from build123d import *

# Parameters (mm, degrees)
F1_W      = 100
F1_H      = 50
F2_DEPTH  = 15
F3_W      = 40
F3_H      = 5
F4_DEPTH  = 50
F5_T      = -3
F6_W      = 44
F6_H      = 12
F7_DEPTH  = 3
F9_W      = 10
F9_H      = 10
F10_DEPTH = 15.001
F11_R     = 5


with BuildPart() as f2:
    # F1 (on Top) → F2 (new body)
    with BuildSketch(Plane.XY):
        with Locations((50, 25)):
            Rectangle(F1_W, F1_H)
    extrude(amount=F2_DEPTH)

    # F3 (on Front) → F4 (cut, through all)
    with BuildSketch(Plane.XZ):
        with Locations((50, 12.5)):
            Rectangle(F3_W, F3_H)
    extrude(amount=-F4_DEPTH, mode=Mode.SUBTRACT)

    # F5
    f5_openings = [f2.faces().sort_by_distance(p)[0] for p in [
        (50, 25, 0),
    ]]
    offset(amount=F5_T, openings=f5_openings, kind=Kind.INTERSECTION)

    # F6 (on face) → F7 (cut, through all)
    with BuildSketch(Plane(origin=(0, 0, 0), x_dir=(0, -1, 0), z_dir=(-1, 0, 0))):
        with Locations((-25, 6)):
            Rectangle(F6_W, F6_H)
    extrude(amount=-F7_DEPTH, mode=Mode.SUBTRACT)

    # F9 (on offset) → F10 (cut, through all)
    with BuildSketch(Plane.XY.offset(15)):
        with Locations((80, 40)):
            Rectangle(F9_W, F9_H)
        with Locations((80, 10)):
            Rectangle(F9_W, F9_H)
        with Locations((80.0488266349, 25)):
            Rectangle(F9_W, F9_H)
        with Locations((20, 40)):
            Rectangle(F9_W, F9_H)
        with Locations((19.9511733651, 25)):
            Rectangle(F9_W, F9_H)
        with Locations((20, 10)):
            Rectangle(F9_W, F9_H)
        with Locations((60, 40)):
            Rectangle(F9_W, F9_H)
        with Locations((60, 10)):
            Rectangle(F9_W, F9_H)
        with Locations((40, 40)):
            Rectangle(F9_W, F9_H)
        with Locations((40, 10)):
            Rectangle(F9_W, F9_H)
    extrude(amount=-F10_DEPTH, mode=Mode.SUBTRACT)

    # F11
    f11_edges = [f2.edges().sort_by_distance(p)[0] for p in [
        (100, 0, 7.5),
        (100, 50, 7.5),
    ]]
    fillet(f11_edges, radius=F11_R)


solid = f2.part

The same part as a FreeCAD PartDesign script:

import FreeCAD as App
import Part
import Sketcher
Q = App.Units.Quantity


def edges_at(feature, points):
    """Names of the edges that pass closest to the given points."""
    edges = feature.Shape.Edges
    near = lambda p: min(range(len(edges)), key=lambda i: edges[i].distToShape(Part.Vertex(*p))[0])
    return sorted({f"Edge{near(p) + 1}" for p in points})


def faces_at(feature, points):
    """Names of the faces that lie closest to the given points."""
    faces = feature.Shape.Faces
    near = lambda p: min(range(len(faces)), key=lambda i: faces[i].distToShape(Part.Vertex(*p))[0])
    return sorted({f"Face{near(p) + 1}" for p in points})

doc = App.newDocument("Part")
body = doc.addObject("PartDesign::Body", "Body")

# Sketch on XY plane
sketch1 = body.newObject("Sketcher::SketchObject", "Sketch")
sketch1.AttachmentSupport = (doc.getObject("XY_Plane"), [""])
sketch1.MapMode = "FlatFace"
sketch1.addGeometry(Part.LineSegment(App.Vector(0, 50, 0), App.Vector(0, 0, 0)), False)
sketch1.addGeometry(Part.LineSegment(App.Vector(0, 0, 0), App.Vector(100, 0, 0)), False)
sketch1.addGeometry(Part.LineSegment(App.Vector(100, 0, 0), App.Vector(100, 50, 0)), False)
sketch1.addGeometry(Part.LineSegment(App.Vector(100, 50, 0), App.Vector(0, 50, 0)), False)
sketch1.addConstraint(Sketcher.Constraint("Coincident", 0, 2, 1, 1))
sketch1.addConstraint(Sketcher.Constraint("Coincident", 1, 2, 2, 1))
sketch1.addConstraint(Sketcher.Constraint("Coincident", 2, 2, 3, 1))
sketch1.addConstraint(Sketcher.Constraint("Coincident", 3, 2, 0, 1))
sketch1.addConstraint(Sketcher.Constraint("Vertical", 0))
sketch1.addConstraint(Sketcher.Constraint("Horizontal", 1))
sketch1.addConstraint(Sketcher.Constraint("Vertical", 2))
sketch1.addConstraint(Sketcher.Constraint("Horizontal", 3))
sketch1.addConstraint(Sketcher.Constraint("Coincident", 0, 2, -1, 1))
sketch1.addConstraint(Sketcher.Constraint("DistanceX", 1, 1, 1, 2, Q("100 mm")))
sketch1.addConstraint(Sketcher.Constraint("DistanceY", 0, 2, 0, 1, Q("50 mm")))
pad1 = body.newObject("PartDesign::Pad", "Pad")
pad1.Profile = sketch1
pad1.Length = 15

# Sketch on XZ plane
sketch2 = body.newObject("Sketcher::SketchObject", "Sketch001")
sketch2.AttachmentSupport = (doc.getObject("XZ_Plane"), [""])
sketch2.MapMode = "FlatFace"
sketch2.addGeometry(Part.LineSegment(App.Vector(30, 15, 0), App.Vector(30, 10, 0)), False)
sketch2.addGeometry(Part.LineSegment(App.Vector(30, 10, 0), App.Vector(70, 10, 0)), False)
sketch2.addGeometry(Part.LineSegment(App.Vector(70, 10, 0), App.Vector(70, 15, 0)), False)
sketch2.addGeometry(Part.LineSegment(App.Vector(70, 15, 0), App.Vector(30, 15, 0)), False)
sketch2.addConstraint(Sketcher.Constraint("Coincident", 0, 2, 1, 1))
sketch2.addConstraint(Sketcher.Constraint("Coincident", 1, 2, 2, 1))
sketch2.addConstraint(Sketcher.Constraint("Coincident", 2, 2, 3, 1))
sketch2.addConstraint(Sketcher.Constraint("Coincident", 3, 2, 0, 1))
sketch2.addConstraint(Sketcher.Constraint("Vertical", 0))
sketch2.addConstraint(Sketcher.Constraint("Horizontal", 1))
sketch2.addConstraint(Sketcher.Constraint("Vertical", 2))
sketch2.addConstraint(Sketcher.Constraint("Horizontal", 3))
sketch2.addConstraint(Sketcher.Constraint("DistanceX", 1, 1, 1, 2, Q("40 mm")))
sketch2.addConstraint(Sketcher.Constraint("DistanceY", 0, 2, 0, 1, Q("5 mm")))
sketch2.addConstraint(Sketcher.Constraint("DistanceX", -1, 1, 0, 2, Q("30 mm")))
sketch2.addConstraint(Sketcher.Constraint("DistanceY", -1, 1, 0, 2, Q("10 mm")))
pocket1 = body.newObject("PartDesign::Pocket", "Pocket")
pocket1.Profile = sketch2
pocket1.Type = "ThroughAll"
doc.recompute()

thickness = body.newObject("PartDesign::Thickness", "Thickness")
thickness.Base = (pocket1, faces_at(pocket1, [(50, 25, 0)]))
thickness.Value = 3
thickness.Reversed = True
thickness.Join = "Intersection"

# Sketch on YZ plane
sketch3 = body.newObject("Sketcher::SketchObject", "Sketch002")
sketch3.AttachmentSupport = (doc.getObject("YZ_Plane"), [""])
sketch3.MapMode = "FlatFace"
sketch3.addGeometry(Part.LineSegment(App.Vector(47, 12, 0), App.Vector(47, 0, 0)), False)
sketch3.addGeometry(Part.LineSegment(App.Vector(47, 0, 0), App.Vector(3, 0, 0)), False)
sketch3.addGeometry(Part.LineSegment(App.Vector(3, 0, 0), App.Vector(3, 12, 0)), False)
sketch3.addGeometry(Part.LineSegment(App.Vector(3, 12, 0), App.Vector(47, 12, 0)), False)
sketch3.addConstraint(Sketcher.Constraint("Coincident", 0, 2, 1, 1))
sketch3.addConstraint(Sketcher.Constraint("Coincident", 1, 2, 2, 1))
sketch3.addConstraint(Sketcher.Constraint("Coincident", 2, 2, 3, 1))
sketch3.addConstraint(Sketcher.Constraint("Coincident", 3, 2, 0, 1))
sketch3.addConstraint(Sketcher.Constraint("Vertical", 0))
sketch3.addConstraint(Sketcher.Constraint("Horizontal", 1))
sketch3.addConstraint(Sketcher.Constraint("Vertical", 2))
sketch3.addConstraint(Sketcher.Constraint("Horizontal", 3))
sketch3.addConstraint(Sketcher.Constraint("PointOnObject", 0, 2, -1))
sketch3.addConstraint(Sketcher.Constraint("DistanceX", 1, 2, 1, 1, Q("44 mm")))
sketch3.addConstraint(Sketcher.Constraint("DistanceY", 0, 2, 0, 1, Q("12 mm")))
sketch3.addConstraint(Sketcher.Constraint("DistanceX", -1, 1, 0, 2, Q("47 mm")))
pocket2 = body.newObject("PartDesign::Pocket", "Pocket001")
pocket2.Profile = sketch3
pocket2.Length = 3
pocket2.Reversed = True

# Sketch on XY plane
sketch4 = body.newObject("Sketcher::SketchObject", "Sketch003")
sketch4.AttachmentSupport = (doc.getObject("XY_Plane"), [""])
sketch4.MapMode = "FlatFace"
sketch4.AttachmentOffset = App.Placement(App.Vector(0, 0, 15), App.Rotation())
sketch4.addGeometry(Part.LineSegment(App.Vector(75, 45, 0), App.Vector(75, 35, 0)), False)
sketch4.addGeometry(Part.LineSegment(App.Vector(75, 35, 0), App.Vector(85, 35, 0)), False)
sketch4.addGeometry(Part.LineSegment(App.Vector(85, 35, 0), App.Vector(85, 45, 0)), False)
sketch4.addGeometry(Part.LineSegment(App.Vector(85, 45, 0), App.Vector(75, 45, 0)), False)
sketch4.addGeometry(Part.LineSegment(App.Vector(75, 15, 0), App.Vector(75, 5, 0)), False)
sketch4.addGeometry(Part.LineSegment(App.Vector(75, 5, 0), App.Vector(85, 5, 0)), False)
sketch4.addGeometry(Part.LineSegment(App.Vector(85, 5, 0), App.Vector(85, 15, 0)), False)
sketch4.addGeometry(Part.LineSegment(App.Vector(85, 15, 0), App.Vector(75, 15, 0)), False)
sketch4.addGeometry(Part.LineSegment(App.Vector(75, 30, 0), App.Vector(75, 20, 0)), False)
sketch4.addGeometry(Part.LineSegment(App.Vector(75, 20, 0), App.Vector(85, 20, 0)), False)
sketch4.addGeometry(Part.LineSegment(App.Vector(85, 20, 0), App.Vector(85, 30, 0)), False)
sketch4.addGeometry(Part.LineSegment(App.Vector(85, 30, 0), App.Vector(75, 30, 0)), False)
sketch4.addGeometry(Part.LineSegment(App.Vector(15, 45, 0), App.Vector(15, 35, 0)), False)
sketch4.addGeometry(Part.LineSegment(App.Vector(15, 35, 0), App.Vector(25, 35, 0)), False)
sketch4.addGeometry(Part.LineSegment(App.Vector(25, 35, 0), App.Vector(25, 45, 0)), False)
sketch4.addGeometry(Part.LineSegment(App.Vector(25, 45, 0), App.Vector(15, 45, 0)), False)
sketch4.addGeometry(Part.LineSegment(App.Vector(15, 30, 0), App.Vector(15, 20, 0)), False)
sketch4.addGeometry(Part.LineSegment(App.Vector(15, 20, 0), App.Vector(25, 20, 0)), False)
sketch4.addGeometry(Part.LineSegment(App.Vector(25, 20, 0), App.Vector(25, 30, 0)), False)
sketch4.addGeometry(Part.LineSegment(App.Vector(25, 30, 0), App.Vector(15, 30, 0)), False)
sketch4.addGeometry(Part.LineSegment(App.Vector(15, 15, 0), App.Vector(15, 5, 0)), False)
sketch4.addGeometry(Part.LineSegment(App.Vector(15, 5, 0), App.Vector(25, 5, 0)), False)
sketch4.addGeometry(Part.LineSegment(App.Vector(25, 5, 0), App.Vector(25, 15, 0)), False)
sketch4.addGeometry(Part.LineSegment(App.Vector(25, 15, 0), App.Vector(15, 15, 0)), False)
sketch4.addGeometry(Part.LineSegment(App.Vector(55, 45, 0), App.Vector(55, 35, 0)), False)
sketch4.addGeometry(Part.LineSegment(App.Vector(55, 35, 0), App.Vector(65, 35, 0)), False)
sketch4.addGeometry(Part.LineSegment(App.Vector(65, 35, 0), App.Vector(65, 45, 0)), False)
sketch4.addGeometry(Part.LineSegment(App.Vector(65, 45, 0), App.Vector(55, 45, 0)), False)
sketch4.addGeometry(Part.LineSegment(App.Vector(55, 15, 0), App.Vector(55, 5, 0)), False)
sketch4.addGeometry(Part.LineSegment(App.Vector(55, 5, 0), App.Vector(65, 5, 0)), False)
sketch4.addGeometry(Part.LineSegment(App.Vector(65, 5, 0), App.Vector(65, 15, 0)), False)
sketch4.addGeometry(Part.LineSegment(App.Vector(65, 15, 0), App.Vector(55, 15, 0)), False)
sketch4.addGeometry(Part.LineSegment(App.Vector(35, 45, 0), App.Vector(35, 35, 0)), False)
sketch4.addGeometry(Part.LineSegment(App.Vector(35, 35, 0), App.Vector(45, 35, 0)), False)
sketch4.addGeometry(Part.LineSegment(App.Vector(45, 35, 0), App.Vector(45, 45, 0)), False)
sketch4.addGeometry(Part.LineSegment(App.Vector(45, 45, 0), App.Vector(35, 45, 0)), False)
sketch4.addGeometry(Part.LineSegment(App.Vector(35, 15, 0), App.Vector(35, 5, 0)), False)
sketch4.addGeometry(Part.LineSegment(App.Vector(35, 5, 0), App.Vector(45, 5, 0)), False)
sketch4.addGeometry(Part.LineSegment(App.Vector(45, 5, 0), App.Vector(45, 15, 0)), False)
sketch4.addGeometry(Part.LineSegment(App.Vector(45, 15, 0), App.Vector(35, 15, 0)), False)
sketch4.addConstraint(Sketcher.Constraint("Coincident", 0, 2, 1, 1))
sketch4.addConstraint(Sketcher.Constraint("Coincident", 1, 2, 2, 1))
sketch4.addConstraint(Sketcher.Constraint("Coincident", 2, 2, 3, 1))
sketch4.addConstraint(Sketcher.Constraint("Coincident", 3, 2, 0, 1))
sketch4.addConstraint(Sketcher.Constraint("Coincident", 4, 2, 5, 1))
sketch4.addConstraint(Sketcher.Constraint("Coincident", 5, 2, 6, 1))
sketch4.addConstraint(Sketcher.Constraint("Coincident", 6, 2, 7, 1))
sketch4.addConstraint(Sketcher.Constraint("Coincident", 7, 2, 4, 1))
sketch4.addConstraint(Sketcher.Constraint("Coincident", 8, 2, 9, 1))
sketch4.addConstraint(Sketcher.Constraint("Coincident", 9, 2, 10, 1))
sketch4.addConstraint(Sketcher.Constraint("Coincident", 10, 2, 11, 1))
sketch4.addConstraint(Sketcher.Constraint("Coincident", 11, 2, 8, 1))
sketch4.addConstraint(Sketcher.Constraint("Coincident", 12, 2, 13, 1))
sketch4.addConstraint(Sketcher.Constraint("Coincident", 13, 2, 14, 1))
sketch4.addConstraint(Sketcher.Constraint("Coincident", 14, 2, 15, 1))
sketch4.addConstraint(Sketcher.Constraint("Coincident", 15, 2, 12, 1))
sketch4.addConstraint(Sketcher.Constraint("Coincident", 16, 2, 17, 1))
sketch4.addConstraint(Sketcher.Constraint("Coincident", 17, 2, 18, 1))
sketch4.addConstraint(Sketcher.Constraint("Coincident", 18, 2, 19, 1))
sketch4.addConstraint(Sketcher.Constraint("Coincident", 19, 2, 16, 1))
sketch4.addConstraint(Sketcher.Constraint("Coincident", 20, 2, 21, 1))
sketch4.addConstraint(Sketcher.Constraint("Coincident", 21, 2, 22, 1))
sketch4.addConstraint(Sketcher.Constraint("Coincident", 22, 2, 23, 1))
sketch4.addConstraint(Sketcher.Constraint("Coincident", 23, 2, 20, 1))
sketch4.addConstraint(Sketcher.Constraint("Coincident", 24, 2, 25, 1))
sketch4.addConstraint(Sketcher.Constraint("Coincident", 25, 2, 26, 1))
sketch4.addConstraint(Sketcher.Constraint("Coincident", 26, 2, 27, 1))
sketch4.addConstraint(Sketcher.Constraint("Coincident", 27, 2, 24, 1))
sketch4.addConstraint(Sketcher.Constraint("Coincident", 28, 2, 29, 1))
sketch4.addConstraint(Sketcher.Constraint("Coincident", 29, 2, 30, 1))
sketch4.addConstraint(Sketcher.Constraint("Coincident", 30, 2, 31, 1))
sketch4.addConstraint(Sketcher.Constraint("Coincident", 31, 2, 28, 1))
sketch4.addConstraint(Sketcher.Constraint("Coincident", 32, 2, 33, 1))
sketch4.addConstraint(Sketcher.Constraint("Coincident", 33, 2, 34, 1))
sketch4.addConstraint(Sketcher.Constraint("Coincident", 34, 2, 35, 1))
sketch4.addConstraint(Sketcher.Constraint("Coincident", 35, 2, 32, 1))
sketch4.addConstraint(Sketcher.Constraint("Coincident", 36, 2, 37, 1))
sketch4.addConstraint(Sketcher.Constraint("Coincident", 37, 2, 38, 1))
sketch4.addConstraint(Sketcher.Constraint("Coincident", 38, 2, 39, 1))
sketch4.addConstraint(Sketcher.Constraint("Coincident", 39, 2, 36, 1))
sketch4.addConstraint(Sketcher.Constraint("Vertical", 0))
sketch4.addConstraint(Sketcher.Constraint("Horizontal", 1))
sketch4.addConstraint(Sketcher.Constraint("Vertical", 2))
sketch4.addConstraint(Sketcher.Constraint("Horizontal", 3))
sketch4.addConstraint(Sketcher.Constraint("Vertical", 4))
sketch4.addConstraint(Sketcher.Constraint("Horizontal", 5))
sketch4.addConstraint(Sketcher.Constraint("Vertical", 6))
sketch4.addConstraint(Sketcher.Constraint("Horizontal", 7))
sketch4.addConstraint(Sketcher.Constraint("Vertical", 8))
sketch4.addConstraint(Sketcher.Constraint("Horizontal", 9))
sketch4.addConstraint(Sketcher.Constraint("Vertical", 10))
sketch4.addConstraint(Sketcher.Constraint("Horizontal", 11))
sketch4.addConstraint(Sketcher.Constraint("Vertical", 12))
sketch4.addConstraint(Sketcher.Constraint("Horizontal", 13))
sketch4.addConstraint(Sketcher.Constraint("Vertical", 14))
sketch4.addConstraint(Sketcher.Constraint("Horizontal", 15))
sketch4.addConstraint(Sketcher.Constraint("Vertical", 16))
sketch4.addConstraint(Sketcher.Constraint("Horizontal", 17))
sketch4.addConstraint(Sketcher.Constraint("Vertical", 18))
sketch4.addConstraint(Sketcher.Constraint("Horizontal", 19))
sketch4.addConstraint(Sketcher.Constraint("Vertical", 20))
sketch4.addConstraint(Sketcher.Constraint("Horizontal", 21))
sketch4.addConstraint(Sketcher.Constraint("Vertical", 22))
sketch4.addConstraint(Sketcher.Constraint("Horizontal", 23))
sketch4.addConstraint(Sketcher.Constraint("Vertical", 24))
sketch4.addConstraint(Sketcher.Constraint("Horizontal", 25))
sketch4.addConstraint(Sketcher.Constraint("Vertical", 26))
sketch4.addConstraint(Sketcher.Constraint("Horizontal", 27))
sketch4.addConstraint(Sketcher.Constraint("Vertical", 28))
sketch4.addConstraint(Sketcher.Constraint("Horizontal", 29))
sketch4.addConstraint(Sketcher.Constraint("Vertical", 30))
sketch4.addConstraint(Sketcher.Constraint("Horizontal", 31))
sketch4.addConstraint(Sketcher.Constraint("Vertical", 32))
sketch4.addConstraint(Sketcher.Constraint("Horizontal", 33))
sketch4.addConstraint(Sketcher.Constraint("Vertical", 34))
sketch4.addConstraint(Sketcher.Constraint("Horizontal", 35))
sketch4.addConstraint(Sketcher.Constraint("Vertical", 36))
sketch4.addConstraint(Sketcher.Constraint("Horizontal", 37))
sketch4.addConstraint(Sketcher.Constraint("Vertical", 38))
sketch4.addConstraint(Sketcher.Constraint("Horizontal", 39))
sketch4.addConstraint(Sketcher.Constraint("Horizontal", 1, 2, 12, 2))
sketch4.addConstraint(Sketcher.Constraint("Horizontal", 3, 2, 14, 2))
sketch4.addConstraint(Sketcher.Constraint("Horizontal", 9, 2, 16, 2))
sketch4.addConstraint(Sketcher.Constraint("Horizontal", 11, 2, 18, 2))
sketch4.addConstraint(Sketcher.Constraint("Horizontal", 5, 2, 20, 2))
sketch4.addConstraint(Sketcher.Constraint("Horizontal", 7, 2, 22, 2))
sketch4.addConstraint(Sketcher.Constraint("Horizontal", 13, 2, 24, 2))
sketch4.addConstraint(Sketcher.Constraint("Horizontal", 15, 2, 26, 2))
sketch4.addConstraint(Sketcher.Constraint("Horizontal", 21, 2, 28, 2))
sketch4.addConstraint(Sketcher.Constraint("Horizontal", 23, 2, 30, 2))
sketch4.addConstraint(Sketcher.Constraint("Horizontal", 25, 2, 32, 2))
sketch4.addConstraint(Sketcher.Constraint("Horizontal", 27, 2, 34, 2))
sketch4.addConstraint(Sketcher.Constraint("Horizontal", 29, 2, 36, 2))
sketch4.addConstraint(Sketcher.Constraint("Horizontal", 31, 2, 38, 2))
sketch4.addConstraint(Sketcher.Constraint("Vertical", 3, 2, 4, 2))
sketch4.addConstraint(Sketcher.Constraint("Vertical", 2, 2, 5, 2))
sketch4.addConstraint(Sketcher.Constraint("Vertical", 15, 2, 20, 2))
sketch4.addConstraint(Sketcher.Constraint("Vertical", 14, 2, 21, 2))
sketch4.addConstraint(Sketcher.Constraint("Vertical", 27, 2, 28, 2))
sketch4.addConstraint(Sketcher.Constraint("Vertical", 26, 2, 29, 2))
sketch4.addConstraint(Sketcher.Constraint("Vertical", 35, 2, 36, 2))
sketch4.addConstraint(Sketcher.Constraint("Vertical", 34, 2, 37, 2))
sketch4.addConstraint(Sketcher.Constraint("Equal", 7, 9))
sketch4.addConstraint(Sketcher.Constraint("Equal", 11, 13))
sketch4.addConstraint(Sketcher.Constraint("Equal", 15, 17))
sketch4.addConstraint(Sketcher.Constraint("Equal", 23, 25))
sketch4.addConstraint(Sketcher.Constraint("Equal", 31, 33))
sketch4.addConstraint(Sketcher.Constraint("Equal", 39, 0))
sketch4.addConstraint(Sketcher.Constraint("Equal", 2, 4))
sketch4.addConstraint(Sketcher.Constraint("Equal", 6, 8))
sketch4.addConstraint(Sketcher.Constraint("DistanceX", 1, 1, 1, 2, Q("10 mm")))
sketch4.addConstraint(Sketcher.Constraint("DistanceX", -1, 1, 0, 2, Q("75 mm")))
sketch4.addConstraint(Sketcher.Constraint("DistanceY", -1, 1, 0, 2, Q("35 mm")))
sketch4.addConstraint(Sketcher.Constraint("DistanceY", -1, 1, 4, 2, Q("5 mm")))
sketch4.addConstraint(Sketcher.Constraint("DistanceY", -1, 1, 8, 2, Q("20 mm")))
sketch4.addConstraint(Sketcher.Constraint("DistanceX", -1, 1, 12, 2, Q("15 mm")))
sketch4.addConstraint(Sketcher.Constraint("DistanceX", -1, 1, 24, 2, Q("55 mm")))
sketch4.addConstraint(Sketcher.Constraint("DistanceX", -1, 1, 32, 2, Q("35 mm")))
sketch4.addConstraint(Sketcher.Constraint("DistanceX", -1, 1, 8, 2, Q("75.048827 mm")))
sketch4.addConstraint(Sketcher.Constraint("DistanceX", -1, 1, 16, 2, Q("14.951173 mm")))
pocket3 = body.newObject("PartDesign::Pocket", "Pocket002")
pocket3.Profile = sketch4
pocket3.Type = "ThroughAll"
doc.recompute()

fillet = body.newObject("PartDesign::Fillet", "Fillet")
fillet.Base = (pocket3, edges_at(pocket3, [(100, 0, 7.5), (100, 50, 7.5)]))
fillet.Radius = 5

doc.recompute()
